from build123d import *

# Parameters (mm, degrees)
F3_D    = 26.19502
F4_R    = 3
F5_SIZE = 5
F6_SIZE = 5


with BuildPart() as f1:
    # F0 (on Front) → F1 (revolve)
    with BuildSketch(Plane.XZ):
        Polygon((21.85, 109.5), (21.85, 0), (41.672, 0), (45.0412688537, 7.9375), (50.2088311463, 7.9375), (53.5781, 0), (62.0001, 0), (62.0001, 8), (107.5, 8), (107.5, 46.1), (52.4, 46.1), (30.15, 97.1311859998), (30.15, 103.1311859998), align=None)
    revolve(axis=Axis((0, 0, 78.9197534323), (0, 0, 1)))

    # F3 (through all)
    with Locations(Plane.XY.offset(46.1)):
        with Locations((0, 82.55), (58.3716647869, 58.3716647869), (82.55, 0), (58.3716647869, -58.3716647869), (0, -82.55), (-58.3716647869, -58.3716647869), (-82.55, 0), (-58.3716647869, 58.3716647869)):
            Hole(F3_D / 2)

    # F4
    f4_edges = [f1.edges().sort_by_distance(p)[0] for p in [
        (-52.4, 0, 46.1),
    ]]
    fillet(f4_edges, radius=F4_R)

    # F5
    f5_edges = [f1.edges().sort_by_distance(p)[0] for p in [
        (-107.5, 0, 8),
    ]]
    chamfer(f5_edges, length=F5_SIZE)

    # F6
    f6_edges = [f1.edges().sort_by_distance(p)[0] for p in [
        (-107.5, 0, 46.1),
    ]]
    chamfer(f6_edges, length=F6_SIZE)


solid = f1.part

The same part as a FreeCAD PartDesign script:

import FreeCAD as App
import Part
import Sketcher
Q = App.Units.Quantity


def edges_at(feature, points):
    """Names of the edges that pass closest to the given points."""
    edges = feature.Shape.Edges
    near = lambda p: min(range(len(edges)), key=lambda i: edges[i].distToShape(Part.Vertex(*p))[0])
    return sorted({f"Edge{near(p) + 1}" for p in points})


def add_polygon(sketch, points):
    """Adds a closed chain of lines whose ends are joined by coincident constraints."""
    first, n = sketch.GeometryCount, len(points)
    for a, b in zip(points, points[1:] + points[:1]):
        sketch.addGeometry(Part.LineSegment(App.Vector(*a, 0), App.Vector(*b, 0)), False)
    for i in range(n):
        sketch.addConstraint(Sketcher.Constraint("Coincident", first + i, 2, first + (i + 1) % n, 1))

doc = App.newDocument("Part")
body = doc.addObject("PartDesign::Body", "Body")

# Sketch on XZ plane
sketch1 = body.newObject("Sketcher::SketchObject", "Sketch")
sketch1.AttachmentSupport = (doc.getObject("XZ_Plane"), [""])
sketch1.MapMode = "FlatFace"
add_polygon(sketch1, [(22, 110), (22, 0), (42, 0), (45, 8), (50, 8), (54, 0), (62, 0), (62, 8), (108, 8), (108, 46), (52, 46), (30, 97), (30, 103)])  # lines 0-12
sketch1.addConstraint(Sketcher.Constraint("Vertical", 0))
sketch1.addConstraint(Sketcher.Constraint("Horizontal", 1))
sketch1.addConstraint(Sketcher.Constraint("Horizontal", 3))
sketch1.addConstraint(Sketcher.Constraint("Horizontal", 5))
sketch1.addConstraint(Sketcher.Constraint("Vertical", 6))
sketch1.addConstraint(Sketcher.Constraint("Horizontal", 7))
sketch1.addConstraint(Sketcher.Constraint("Vertical", 8))
sketch1.addConstraint(Sketcher.Constraint("Horizontal", 9))
sketch1.addConstraint(Sketcher.Constraint("Vertical", 11))
sketch1.addConstraint(Sketcher.Constraint("PointOnObject", 0, 2, -1))
sketch1.addConstraint(Sketcher.Constraint("PointOnObject", 4, 2, -1))
sketch1.addConstraint(Sketcher.Constraint("Equal", 2, 4))
sketch1.addConstraint(Sketcher.Constraint("DistanceY", 6, 1, 6, 2, 8.0))
sketch1.addConstraint(Sketcher.Constraint("DistanceY", 11, 1, 11, 2, 6.0))
sketch1.addConstraint(Sketcher.Constraint("Angle", 2, Q("67 deg")))
sketch1.addConstraint(Sketcher.Constraint("DistanceX", 9, 2, 9, 1, 55.1))
sketch1.addConstraint(Sketcher.Constraint("DistanceY", 0, 2, 0, 1, 109.5))
sketch1.addConstraint(Sketcher.Constraint("DistanceY", 8, 1, 8, 2, 38.1))
sketch1.addConstraint(Sketcher.Constraint("Angle", 12, Q("142.5 deg")))
sketch1.addConstraint(Sketcher.Constraint("DistanceX", -1, 1, 7, 2, 107.5))
sketch1.addConstraint(Sketcher.Constraint("DistanceX", 12, 2, 11, 2, 8.3))
sketch1.addConstraint(Sketcher.Constraint("DistanceX", 1, 1, 1, 2, 19.822))
sketch1.addConstraint(Sketcher.Constraint("DistanceX", 5, 1, 5, 2, 8.422))
sketch1.addConstraint(Sketcher.Constraint("DistanceX", -1, 1, 0, 2, 21.85))
sketch1.addConstraint(Sketcher.Constraint("DistanceX", 7, 1, 7, 2, 45.4999))
sketch1.addConstraint(Sketcher.Constraint("DistanceY", -1, 1, 2, 2, 7.9375))
revolution = body.newObject("PartDesign::Revolution", "Revolution")
revolution.Profile = sketch1
revolution.ReferenceAxis = (sketch1, ["V_Axis"])
revolution.Angle = 360

# Sketch on XY plane
sketch2 = body.newObject("Sketcher::SketchObject", "Sketch001")
sketch2.AttachmentSupport = (doc.getObject("XY_Plane"), [""])
sketch2.MapMode = "FlatFace"
sketch2.AttachmentOffset = App.Placement(App.Vector(0, 0, 46.1), App.Rotation())
sketch2.addGeometry(Part.Circle(App.Vector(0, 83, 0), App.Vector(0, 0, 1), 13), False)
sketch2.addGeometry(Part.Circle(App.Vector(58, 58, 0), App.Vector(0, 0, 1), 13), False)
sketch2.addGeometry(Part.Circle(App.Vector(83, 0, 0), App.Vector(0, 0, 1), 13), False)
sketch2.addGeometry(Part.Circle(App.Vector(58, -58, 0), App.Vector(0, 0, 1), 13), False)
sketch2.addGeometry(Part.Circle(App.Vector(0, -83, 0), App.Vector(0, 0, 1), 13), False)
sketch2.addGeometry(Part.Circle(App.Vector(-58, -58, 0), App.Vector(0, 0, 1), 13), False)
sketch2.addGeometry(Part.Circle(App.Vector(-83, 0, 0), App.Vector(0, 0, 1), 13), False)
sketch2.addGeometry(Part.Circle(App.Vector(-58, 58, 0), App.Vector(0, 0, 1), 13), False)
sketch2.addConstraint(Sketcher.Constraint("Equal", 0, 1))
sketch2.addConstraint(Sketcher.Constraint("Equal", 1, 2))
sketch2.addConstraint(Sketcher.Constraint("Equal", 2, 3))
sketch2.addConstraint(Sketcher.Constraint("Equal", 3, 4))
sketch2.addConstraint(Sketcher.Constraint("Equal", 4, 5))
sketch2.addConstraint(Sketcher.Constraint("Equal", 5, 6))
sketch2.addConstraint(Sketcher.Constraint("Equal", 6, 7))
sketch2.addConstraint(Sketcher.Constraint("Symmetric", 0, 3, 4, 3, -1, 1))
sketch2.addConstraint(Sketcher.Constraint("Symmetric", 1, 3, 5, 3, -1, 1))
sketch2.addConstraint(Sketcher.Constraint("Symmetric", 2, 3, 6, 3, -1, 1))
sketch2.addConstraint(Sketcher.Constraint("Symmetric", 3, 3, 7, 3, -1, 1))
sketch2.addConstraint(Sketcher.Constraint("Symmetric", 3, 3, 5, 3, -2))
sketch2.addConstraint(Sketcher.Constraint("PointOnObject", 0, 3, -2))
sketch2.addConstraint(Sketcher.Constraint("PointOnObject", 2, 3, -1))
sketch2.addConstraint(Sketcher.Constraint("DistanceY", 4, 3, 0, 3, 165.1))
sketch2.addConstraint(Sketcher.Constraint("Diameter", 0, 26.19502))
sketch2.addConstraint(Sketcher.Constraint("DistanceX", -1, 1, 2, 3, 82.55))
sketch2.addConstraint(Sketcher.Constraint("DistanceY", 3, 3, 1, 3, 116.74333))
sketch2.addConstraint(Sketcher.Constraint("DistanceX", 5, 3, 3, 3, 116.74333))
doc.recompute()
hole = body.newObject("PartDesign::Hole", "Hole")
hole.Profile = sketch2
hole.ThreadType = "None"
hole.Diameter = 26.19502
hole.DepthType = "ThroughAll"
doc.recompute()

fillet = body.newObject("PartDesign::Fillet", "Fillet")
fillet.Base = (hole, edges_at(hole, [(-52.4, 0, 46.1)]))
fillet.Radius = 3
doc.recompute()

chamfer = body.newObject("PartDesign::Chamfer", "Chamfer")
chamfer.Base = (fillet, edges_at(fillet, [(-107.5, 0, 8)]))
chamfer.Size = 5
doc.recompute()

chamfer2 = body.newObject("PartDesign::Chamfer", "Chamfer001")
chamfer2.Base = (chamfer, edges_at(chamfer, [(-107.5, 0, 46.1)]))
chamfer2.Size = 5

doc.recompute()
